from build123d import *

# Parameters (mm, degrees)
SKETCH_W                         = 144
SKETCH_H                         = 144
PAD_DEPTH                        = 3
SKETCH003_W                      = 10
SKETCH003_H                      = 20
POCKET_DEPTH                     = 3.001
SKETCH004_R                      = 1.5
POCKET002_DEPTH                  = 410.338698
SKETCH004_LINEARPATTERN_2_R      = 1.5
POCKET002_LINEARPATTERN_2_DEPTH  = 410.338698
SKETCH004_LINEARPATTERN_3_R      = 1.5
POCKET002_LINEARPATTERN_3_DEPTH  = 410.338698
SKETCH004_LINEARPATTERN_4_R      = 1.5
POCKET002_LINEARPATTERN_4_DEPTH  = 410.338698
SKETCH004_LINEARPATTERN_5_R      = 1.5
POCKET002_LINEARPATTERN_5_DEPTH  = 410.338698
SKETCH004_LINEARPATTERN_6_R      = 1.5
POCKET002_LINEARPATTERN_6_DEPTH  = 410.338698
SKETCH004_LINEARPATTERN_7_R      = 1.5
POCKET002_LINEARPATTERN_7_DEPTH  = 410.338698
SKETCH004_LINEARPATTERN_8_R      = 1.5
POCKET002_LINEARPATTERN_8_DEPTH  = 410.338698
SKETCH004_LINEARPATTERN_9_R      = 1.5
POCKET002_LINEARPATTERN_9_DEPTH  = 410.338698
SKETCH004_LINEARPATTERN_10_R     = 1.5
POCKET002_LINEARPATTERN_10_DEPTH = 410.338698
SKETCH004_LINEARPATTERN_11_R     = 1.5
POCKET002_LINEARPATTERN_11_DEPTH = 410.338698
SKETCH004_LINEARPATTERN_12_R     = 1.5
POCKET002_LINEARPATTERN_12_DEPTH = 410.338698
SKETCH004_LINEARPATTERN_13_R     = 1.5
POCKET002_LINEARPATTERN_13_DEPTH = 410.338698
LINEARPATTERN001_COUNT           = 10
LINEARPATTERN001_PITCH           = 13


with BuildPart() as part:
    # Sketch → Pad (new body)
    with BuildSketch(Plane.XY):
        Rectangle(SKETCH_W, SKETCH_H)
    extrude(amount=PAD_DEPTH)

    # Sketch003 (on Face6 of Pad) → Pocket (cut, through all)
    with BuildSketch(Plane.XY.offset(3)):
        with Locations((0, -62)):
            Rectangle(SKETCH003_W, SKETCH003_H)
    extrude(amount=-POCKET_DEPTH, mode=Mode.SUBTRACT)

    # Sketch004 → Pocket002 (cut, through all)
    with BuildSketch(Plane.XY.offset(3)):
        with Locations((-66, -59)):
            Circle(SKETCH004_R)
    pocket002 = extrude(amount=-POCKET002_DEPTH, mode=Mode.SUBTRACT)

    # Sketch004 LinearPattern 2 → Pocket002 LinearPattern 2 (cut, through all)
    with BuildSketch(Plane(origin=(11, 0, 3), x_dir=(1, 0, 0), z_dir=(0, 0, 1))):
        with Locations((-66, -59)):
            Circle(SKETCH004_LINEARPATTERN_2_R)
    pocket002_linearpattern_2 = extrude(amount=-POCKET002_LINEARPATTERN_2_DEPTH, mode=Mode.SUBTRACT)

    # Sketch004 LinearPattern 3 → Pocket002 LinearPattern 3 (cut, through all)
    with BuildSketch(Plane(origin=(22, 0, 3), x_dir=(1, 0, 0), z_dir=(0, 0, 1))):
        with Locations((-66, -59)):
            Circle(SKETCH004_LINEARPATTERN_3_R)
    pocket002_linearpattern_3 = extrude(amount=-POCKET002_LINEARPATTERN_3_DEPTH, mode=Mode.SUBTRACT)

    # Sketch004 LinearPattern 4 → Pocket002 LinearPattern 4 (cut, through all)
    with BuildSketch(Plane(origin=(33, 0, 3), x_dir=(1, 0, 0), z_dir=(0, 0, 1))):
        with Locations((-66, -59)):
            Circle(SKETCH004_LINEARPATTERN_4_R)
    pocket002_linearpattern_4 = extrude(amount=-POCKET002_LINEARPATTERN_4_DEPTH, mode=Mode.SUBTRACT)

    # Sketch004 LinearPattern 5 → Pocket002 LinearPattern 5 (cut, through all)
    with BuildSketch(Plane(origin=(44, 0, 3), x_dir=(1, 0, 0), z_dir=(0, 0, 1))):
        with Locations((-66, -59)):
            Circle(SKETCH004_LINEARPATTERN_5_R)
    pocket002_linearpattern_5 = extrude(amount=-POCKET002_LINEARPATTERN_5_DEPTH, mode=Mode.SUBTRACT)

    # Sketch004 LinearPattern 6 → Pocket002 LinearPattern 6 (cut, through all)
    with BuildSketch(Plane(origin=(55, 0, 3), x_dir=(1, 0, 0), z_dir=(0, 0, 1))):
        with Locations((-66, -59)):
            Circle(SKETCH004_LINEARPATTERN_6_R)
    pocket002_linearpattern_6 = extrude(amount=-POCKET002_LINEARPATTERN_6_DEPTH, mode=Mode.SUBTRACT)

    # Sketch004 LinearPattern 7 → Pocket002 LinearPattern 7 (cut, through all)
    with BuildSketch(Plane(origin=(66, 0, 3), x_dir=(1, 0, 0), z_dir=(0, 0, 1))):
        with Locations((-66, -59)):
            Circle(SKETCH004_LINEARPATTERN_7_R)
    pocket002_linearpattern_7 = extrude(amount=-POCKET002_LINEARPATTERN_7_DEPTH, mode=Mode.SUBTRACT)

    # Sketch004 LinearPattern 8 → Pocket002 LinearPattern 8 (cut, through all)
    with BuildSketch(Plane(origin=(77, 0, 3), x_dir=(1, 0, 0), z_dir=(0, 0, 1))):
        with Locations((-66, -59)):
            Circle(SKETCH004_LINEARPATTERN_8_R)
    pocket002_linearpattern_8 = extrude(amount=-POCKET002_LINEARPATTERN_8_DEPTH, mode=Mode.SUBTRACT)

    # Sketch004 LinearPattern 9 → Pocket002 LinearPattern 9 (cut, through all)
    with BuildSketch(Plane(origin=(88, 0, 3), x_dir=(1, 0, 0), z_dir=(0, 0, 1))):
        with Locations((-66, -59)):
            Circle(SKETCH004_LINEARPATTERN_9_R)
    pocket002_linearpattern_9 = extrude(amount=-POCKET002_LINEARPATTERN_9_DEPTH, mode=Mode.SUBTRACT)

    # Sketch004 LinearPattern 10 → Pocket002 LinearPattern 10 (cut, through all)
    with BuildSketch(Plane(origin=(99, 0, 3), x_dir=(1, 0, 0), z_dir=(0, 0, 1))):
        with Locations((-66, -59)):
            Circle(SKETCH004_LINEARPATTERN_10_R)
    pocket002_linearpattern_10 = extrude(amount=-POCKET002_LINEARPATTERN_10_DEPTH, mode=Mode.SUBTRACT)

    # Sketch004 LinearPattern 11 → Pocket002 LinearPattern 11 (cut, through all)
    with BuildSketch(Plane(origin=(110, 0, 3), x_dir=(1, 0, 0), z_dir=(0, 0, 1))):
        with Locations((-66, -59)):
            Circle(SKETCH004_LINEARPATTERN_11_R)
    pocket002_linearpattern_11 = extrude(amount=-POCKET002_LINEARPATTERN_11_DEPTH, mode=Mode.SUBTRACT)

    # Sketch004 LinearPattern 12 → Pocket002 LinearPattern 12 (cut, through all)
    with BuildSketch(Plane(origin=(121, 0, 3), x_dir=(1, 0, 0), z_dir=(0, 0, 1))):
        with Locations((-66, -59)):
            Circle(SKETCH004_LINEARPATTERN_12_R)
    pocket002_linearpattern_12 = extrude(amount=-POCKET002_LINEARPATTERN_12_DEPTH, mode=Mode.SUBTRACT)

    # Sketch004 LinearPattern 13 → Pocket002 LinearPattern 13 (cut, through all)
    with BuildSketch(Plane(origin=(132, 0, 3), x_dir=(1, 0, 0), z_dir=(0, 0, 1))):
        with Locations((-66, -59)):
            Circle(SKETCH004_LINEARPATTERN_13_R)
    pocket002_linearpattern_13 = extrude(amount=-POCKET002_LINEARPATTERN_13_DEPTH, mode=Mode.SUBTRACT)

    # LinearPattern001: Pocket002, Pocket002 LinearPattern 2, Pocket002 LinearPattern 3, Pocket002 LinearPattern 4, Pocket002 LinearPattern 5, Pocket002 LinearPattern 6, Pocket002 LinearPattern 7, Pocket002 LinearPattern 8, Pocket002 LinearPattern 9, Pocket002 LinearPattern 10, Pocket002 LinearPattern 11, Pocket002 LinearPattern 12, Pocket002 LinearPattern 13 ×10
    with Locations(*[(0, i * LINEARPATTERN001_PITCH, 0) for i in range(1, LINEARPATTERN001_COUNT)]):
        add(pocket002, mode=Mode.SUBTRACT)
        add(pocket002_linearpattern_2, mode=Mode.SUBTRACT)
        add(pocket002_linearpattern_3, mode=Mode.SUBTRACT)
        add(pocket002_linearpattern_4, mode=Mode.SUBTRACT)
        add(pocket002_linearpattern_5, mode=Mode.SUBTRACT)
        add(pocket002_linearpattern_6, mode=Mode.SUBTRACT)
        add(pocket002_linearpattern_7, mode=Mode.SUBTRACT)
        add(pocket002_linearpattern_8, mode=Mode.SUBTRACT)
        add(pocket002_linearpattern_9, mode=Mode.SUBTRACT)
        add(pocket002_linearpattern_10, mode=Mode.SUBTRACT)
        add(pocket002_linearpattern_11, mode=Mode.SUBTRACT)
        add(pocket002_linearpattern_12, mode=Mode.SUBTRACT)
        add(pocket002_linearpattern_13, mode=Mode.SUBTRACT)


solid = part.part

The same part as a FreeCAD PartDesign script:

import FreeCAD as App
import Part
import Sketcher
from FreeCAD import Vector
Q = App.Units.Quantity


def add_polygon(sketch, points):
    """Adds a closed chain of lines whose ends are joined by coincident constraints."""
    first, n = sketch.GeometryCount, len(points)
    for a, b in zip(points, points[1:] + points[:1]):
        sketch.addGeometry(Part.LineSegment(App.Vector(*a, 0), App.Vector(*b, 0)), False)
    for i in range(n):
        sketch.addConstraint(Sketcher.Constraint("Coincident", first + i, 2, first + (i + 1) % n, 1))

doc = App.newDocument("Part")
body = doc.addObject("PartDesign::Body", "Body")

sketch1 = doc.addObject("Sketcher::SketchObject", "Sketch")
body.addObject(sketch1)
sketch1.AttachmentSupport = (doc.XY_Plane, [""])
sketch1.MapMode = "FlatFace"
add_polygon(sketch1, [(-72, 72), (-72, -72), (72, -72), (72, 72)])
sketch1.addConstraint([
    Sketcher.Constraint("Vertical", 0),
    Sketcher.Constraint("Horizontal", 1),
    Sketcher.Constraint("Vertical", 2),
    Sketcher.Constraint("Horizontal", 3),
    Sketcher.Constraint("Symmetric", 0, 2, 2, 2, -1, 1),
    Sketcher.Constraint("Equal", 3, 0),
    Sketcher.Constraint("DistanceX", 1, 1, 1, 2, Q("144 mm")),
])
pad1 = doc.addObject("PartDesign::Pad", "Pad")
body.addObject(pad1)
pad1.Profile = sketch1
pad1.Length = 3

sketch2 = doc.addObject("Sketcher::SketchObject", "Sketch001")
body.addObject(sketch2)
sketch2.AttachmentSupport = (doc.XY_Plane, [""])
sketch2.MapMode = "FlatFace"
sketch2.AttachmentOffset = App.Placement(Vector(0, 0, 3), App.Rotation())
add_polygon(sketch2, [(-5, -52), (-5, -72), (5, -72), (5, -52)])
sketch2.addConstraint([
    Sketcher.Constraint("Vertical", 0),
    Sketcher.Constraint("Horizontal", 1),
    Sketcher.Constraint("Vertical", 2),
    Sketcher.Constraint("Horizontal", 3),
    Sketcher.Constraint("DistanceX", 1, 1, 1, 2, Q("10 mm")),
    Sketcher.Constraint("DistanceY", 0, 2, 0, 1, Q("20 mm")),
    Sketcher.Constraint("DistanceX", 0, 2, -1, 1, Q("5 mm")),
    Sketcher.Constraint("DistanceY", 0, 2, -1, 1, Q("72 mm")),
])
pocket1 = doc.addObject("PartDesign::Pocket", "Pocket")
body.addObject(pocket1)
pocket1.Profile = sketch2
pocket1.Type = "ThroughAll"

sketch3 = doc.addObject("Sketcher::SketchObject", "Sketch002")
body.addObject(sketch3)
sketch3.AttachmentSupport = (doc.XY_Plane, [""])
sketch3.MapMode = "FlatFace"
sketch3.AttachmentOffset = App.Placement(Vector(0, 0, 3), App.Rotation())
sketch3.addGeometry(Part.Circle(Vector(-66, -59, 0), Vector(0, 0, 1), 1.5), False)
sketch3.addConstraint([
    Sketcher.Constraint("Diameter", 0, Q("3 mm")),
    Sketcher.Constraint("DistanceX", 0, 3, -1, 1, Q("66 mm")),
    Sketcher.Constraint("DistanceY", 0, 3, -1, 1, Q("59 mm")),
])
pocket2 = doc.addObject("PartDesign::Pocket", "Pocket001")
body.addObject(pocket2)
pocket2.Profile = sketch3
pocket2.Type = "ThroughAll"

sketch4 = doc.addObject("Sketcher::SketchObject", "Sketch003")
body.addObject(sketch4)
sketch4.AttachmentSupport = (doc.XY_Plane, [""])
sketch4.MapMode = "FlatFace"
sketch4.AttachmentOffset = App.Placement(Vector(0, 0, 3), App.Rotation())
sketch4.addGeometry(Part.Circle(Vector(-55, -59, 0), Vector(0, 0, 1), 1.5), False)
sketch4.addConstraint([
    Sketcher.Constraint("Diameter", 0, Q("3 mm")),
    Sketcher.Constraint("DistanceX", 0, 3, -1, 1, Q("55 mm")),
    Sketcher.Constraint("DistanceY", 0, 3, -1, 1, Q("59 mm")),
])
pocket3 = doc.addObject("PartDesign::Pocket", "Pocket002")
body.addObject(pocket3)
pocket3.Profile = sketch4
pocket3.Type = "ThroughAll"

sketch5 = doc.addObject("Sketcher::SketchObject", "Sketch004")
body.addObject(sketch5)
sketch5.AttachmentSupport = (doc.XY_Plane, [""])
sketch5.MapMode = "FlatFace"
sketch5.AttachmentOffset = App.Placement(Vector(0, 0, 3), App.Rotation())
sketch5.addGeometry(Part.Circle(Vector(-44, -59, 0), Vector(0, 0, 1), 1.5), False)
sketch5.addConstraint([
    Sketcher.Constraint("Diameter", 0, Q("3 mm")),
    Sketcher.Constraint("DistanceX", 0, 3, -1, 1, Q("44 mm")),
    Sketcher.Constraint("DistanceY", 0, 3, -1, 1, Q("59 mm")),
])
pocket4 = doc.addObject("PartDesign::Pocket", "Pocket003")
body.addObject(pocket4)
pocket4.Profile = sketch5
pocket4.Type = "ThroughAll"

sketch6 = doc.addObject("Sketcher::SketchObject", "Sketch005")
body.addObject(sketch6)
sketch6.AttachmentSupport = (doc.XY_Plane, [""])
sketch6.MapMode = "FlatFace"
sketch6.AttachmentOffset = App.Placement(Vector(0, 0, 3), App.Rotation())
sketch6.addGeometry(Part.Circle(Vector(-33, -59, 0), Vector(0, 0, 1), 1.5), False)
sketch6.addConstraint([
    Sketcher.Constraint("Diameter", 0, Q("3 mm")),
    Sketcher.Constraint("DistanceX", 0, 3, -1, 1, Q("33 mm")),
    Sketcher.Constraint("DistanceY", 0, 3, -1, 1, Q("59 mm")),
])
pocket5 = doc.addObject("PartDesign::Pocket", "Pocket004")
body.addObject(pocket5)
pocket5.Profile = sketch6
pocket5.Type = "ThroughAll"

sketch7 = doc.addObject("Sketcher::SketchObject", "Sketch006")
body.addObject(sketch7)
sketch7.AttachmentSupport = (doc.XY_Plane, [""])
sketch7.MapMode = "FlatFace"
sketch7.AttachmentOffset = App.Placement(Vector(0, 0, 3), App.Rotation())
sketch7.addGeometry(Part.Circle(Vector(-22, -59, 0), Vector(0, 0, 1), 1.5), False)
sketch7.addConstraint([
    Sketcher.Constraint("Diameter", 0, Q("3 mm")),
    Sketcher.Constraint("DistanceX", 0, 3, -1, 1, Q("22 mm")),
    Sketcher.Constraint("DistanceY", 0, 3, -1, 1, Q("59 mm")),
])
pocket6 = doc.addObject("PartDesign::Pocket", "Pocket005")
body.addObject(pocket6)
pocket6.Profile = sketch7
pocket6.Type = "ThroughAll"

sketch8 = doc.addObject("Sketcher::SketchObject", "Sketch007")
body.addObject(sketch8)
sketch8.AttachmentSupport = (doc.XY_Plane, [""])
sketch8.MapMode = "FlatFace"
sketch8.AttachmentOffset = App.Placement(Vector(0, 0, 3), App.Rotation())
sketch8.addGeometry(Part.Circle(Vector(-11, -59, 0), Vector(0, 0, 1), 1.5), False)
sketch8.addConstraint([
    Sketcher.Constraint("Diameter", 0, Q("3 mm")),
    Sketcher.Constraint("DistanceX", 0, 3, -1, 1, Q("11 mm")),
    Sketcher.Constraint("DistanceY", 0, 3, -1, 1, Q("59 mm")),
])
pocket7 = doc.addObject("PartDesign::Pocket", "Pocket006")
body.addObject(pocket7)
pocket7.Profile = sketch8
pocket7.Type = "ThroughAll"

sketch9 = doc.addObject("Sketcher::SketchObject", "Sketch008")
body.addObject(sketch9)
sketch9.AttachmentSupport = (doc.XY_Plane, [""])
sketch9.MapMode = "FlatFace"
sketch9.AttachmentOffset = App.Placement(Vector(0, 0, 3), App.Rotation())
sketch9.addGeometry(Part.Circle(Vector(0, -59, 0), Vector(0, 0, 1), 1.5), False)
sketch9.addConstraint([
    Sketcher.Constraint("PointOnObject", 0, 3, -2),
    Sketcher.Constraint("Diameter", 0, Q("3 mm")),
    Sketcher.Constraint("DistanceY", 0, 3, -1, 1, Q("59 mm")),
])
pocket8 = doc.addObject("PartDesign::Pocket", "Pocket007")
body.addObject(pocket8)
pocket8.Profile = sketch9
pocket8.Type = "ThroughAll"

sketch10 = doc.addObject("Sketcher::SketchObject", "Sketch009")
body.addObject(sketch10)
sketch10.AttachmentSupport = (doc.XY_Plane, [""])
sketch10.MapMode = "FlatFace"
sketch10.AttachmentOffset = App.Placement(Vector(0, 0, 3), App.Rotation())
sketch10.addGeometry(Part.Circle(Vector(11, -59, 0), Vector(0, 0, 1), 1.5), False)
sketch10.addConstraint([
    Sketcher.Constraint("Diameter", 0, Q("3 mm")),
    Sketcher.Constraint("DistanceX", -1, 1, 0, 3, Q("11 mm")),
    Sketcher.Constraint("DistanceY", 0, 3, -1, 1, Q("59 mm")),
])
pocket9 = doc.addObject("PartDesign::Pocket", "Pocket008")
body.addObject(pocket9)
pocket9.Profile = sketch10
pocket9.Type = "ThroughAll"

sketch11 = doc.addObject("Sketcher::SketchObject", "Sketch010")
body.addObject(sketch11)
sketch11.AttachmentSupport = (doc.XY_Plane, [""])
sketch11.MapMode = "FlatFace"
sketch11.AttachmentOffset = App.Placement(Vector(0, 0, 3), App.Rotation())
sketch11.addGeometry(Part.Circle(Vector(22, -59, 0), Vector(0, 0, 1), 1.5), False)
sketch11.addConstraint([
    Sketcher.Constraint("Diameter", 0, Q("3 mm")),
    Sketcher.Constraint("DistanceX", -1, 1, 0, 3, Q("22 mm")),
    Sketcher.Constraint("DistanceY", 0, 3, -1, 1, Q("59 mm")),
])
pocket10 = doc.addObject("PartDesign::Pocket", "Pocket009")
body.addObject(pocket10)
pocket10.Profile = sketch11
pocket10.Type = "ThroughAll"

sketch12 = doc.addObject("Sketcher::SketchObject", "Sketch011")
body.addObject(sketch12)
sketch12.AttachmentSupport = (doc.XY_Plane, [""])
sketch12.MapMode = "FlatFace"
sketch12.AttachmentOffset = App.Placement(Vector(0, 0, 3), App.Rotation())
sketch12.addGeometry(Part.Circle(Vector(33, -59, 0), Vector(0, 0, 1), 1.5), False)
sketch12.addConstraint([
    Sketcher.Constraint("Diameter", 0, Q("3 mm")),
    Sketcher.Constraint("DistanceX", -1, 1, 0, 3, Q("33 mm")),
    Sketcher.Constraint("DistanceY", 0, 3, -1, 1, Q("59 mm")),
])
pocket11 = doc.addObject("PartDesign::Pocket", "Pocket010")
body.addObject(pocket11)
pocket11.Profile = sketch12
pocket11.Type = "ThroughAll"

sketch13 = doc.addObject("Sketcher::SketchObject", "Sketch012")
body.addObject(sketch13)
sketch13.AttachmentSupport = (doc.XY_Plane, [""])
sketch13.MapMode = "FlatFace"
sketch13.AttachmentOffset = App.Placement(Vector(0, 0, 3), App.Rotation())
sketch13.addGeometry(Part.Circle(Vector(44, -59, 0), Vector(0, 0, 1), 1.5), False)
sketch13.addConstraint([
    Sketcher.Constraint("Diameter", 0, Q("3 mm")),
    Sketcher.Constraint("DistanceX", -1, 1, 0, 3, Q("44 mm")),
    Sketcher.Constraint("DistanceY", 0, 3, -1, 1, Q("59 mm")),
])
pocket12 = doc.addObject("PartDesign::Pocket", "Pocket011")
body.addObject(pocket12)
pocket12.Profile = sketch13
pocket12.Type = "ThroughAll"

sketch14 = doc.addObject("Sketcher::SketchObject", "Sketch013")
body.addObject(sketch14)
sketch14.AttachmentSupport = (doc.XY_Plane, [""])
sketch14.MapMode = "FlatFace"
sketch14.AttachmentOffset = App.Placement(Vector(0, 0, 3), App.Rotation())
sketch14.addGeometry(Part.Circle(Vector(55, -59, 0), Vector(0, 0, 1), 1.5), False)
sketch14.addConstraint([
    Sketcher.Constraint("Diameter", 0, Q("3 mm")),
    Sketcher.Constraint("DistanceX", -1, 1, 0, 3, Q("55 mm")),
    Sketcher.Constraint("DistanceY", 0, 3, -1, 1, Q("59 mm")),
])
pocket13 = doc.addObject("PartDesign::Pocket", "Pocket012")
body.addObject(pocket13)
pocket13.Profile = sketch14
pocket13.Type = "ThroughAll"

sketch15 = doc.addObject("Sketcher::SketchObject", "Sketch014")
body.addObject(sketch15)
sketch15.AttachmentSupport = (doc.XY_Plane, [""])
sketch15.MapMode = "FlatFace"
sketch15.AttachmentOffset = App.Placement(Vector(0, 0, 3), App.Rotation())
sketch15.addGeometry(Part.Circle(Vector(66, -59, 0), Vector(0, 0, 1), 1.5), False)
sketch15.addConstraint([
    Sketcher.Constraint("Diameter", 0, Q("3 mm")),
    Sketcher.Constraint("DistanceX", -1, 1, 0, 3, Q("66 mm")),
    Sketcher.Constraint("DistanceY", 0, 3, -1, 1, Q("59 mm")),
])
pocket14 = doc.addObject("PartDesign::Pocket", "Pocket013")
body.addObject(pocket14)
pocket14.Profile = sketch15
pocket14.Type = "ThroughAll"
doc.recompute()

linearpattern = doc.addObject("PartDesign::LinearPattern", "LinearPattern")
body.addObject(linearpattern)
linearpattern.Originals = [pocket2, pocket3, pocket4, pocket5, pocket6, pocket7, pocket8, pocket9, pocket10, pocket11, pocket12, pocket13, pocket14]
linearpattern.Direction = (doc.Y_Axis, [""])
linearpattern.Mode = "offset"
linearpattern.Offset = 13
linearpattern.Occurrences = 10
body.Tip = linearpattern

doc.recompute()
